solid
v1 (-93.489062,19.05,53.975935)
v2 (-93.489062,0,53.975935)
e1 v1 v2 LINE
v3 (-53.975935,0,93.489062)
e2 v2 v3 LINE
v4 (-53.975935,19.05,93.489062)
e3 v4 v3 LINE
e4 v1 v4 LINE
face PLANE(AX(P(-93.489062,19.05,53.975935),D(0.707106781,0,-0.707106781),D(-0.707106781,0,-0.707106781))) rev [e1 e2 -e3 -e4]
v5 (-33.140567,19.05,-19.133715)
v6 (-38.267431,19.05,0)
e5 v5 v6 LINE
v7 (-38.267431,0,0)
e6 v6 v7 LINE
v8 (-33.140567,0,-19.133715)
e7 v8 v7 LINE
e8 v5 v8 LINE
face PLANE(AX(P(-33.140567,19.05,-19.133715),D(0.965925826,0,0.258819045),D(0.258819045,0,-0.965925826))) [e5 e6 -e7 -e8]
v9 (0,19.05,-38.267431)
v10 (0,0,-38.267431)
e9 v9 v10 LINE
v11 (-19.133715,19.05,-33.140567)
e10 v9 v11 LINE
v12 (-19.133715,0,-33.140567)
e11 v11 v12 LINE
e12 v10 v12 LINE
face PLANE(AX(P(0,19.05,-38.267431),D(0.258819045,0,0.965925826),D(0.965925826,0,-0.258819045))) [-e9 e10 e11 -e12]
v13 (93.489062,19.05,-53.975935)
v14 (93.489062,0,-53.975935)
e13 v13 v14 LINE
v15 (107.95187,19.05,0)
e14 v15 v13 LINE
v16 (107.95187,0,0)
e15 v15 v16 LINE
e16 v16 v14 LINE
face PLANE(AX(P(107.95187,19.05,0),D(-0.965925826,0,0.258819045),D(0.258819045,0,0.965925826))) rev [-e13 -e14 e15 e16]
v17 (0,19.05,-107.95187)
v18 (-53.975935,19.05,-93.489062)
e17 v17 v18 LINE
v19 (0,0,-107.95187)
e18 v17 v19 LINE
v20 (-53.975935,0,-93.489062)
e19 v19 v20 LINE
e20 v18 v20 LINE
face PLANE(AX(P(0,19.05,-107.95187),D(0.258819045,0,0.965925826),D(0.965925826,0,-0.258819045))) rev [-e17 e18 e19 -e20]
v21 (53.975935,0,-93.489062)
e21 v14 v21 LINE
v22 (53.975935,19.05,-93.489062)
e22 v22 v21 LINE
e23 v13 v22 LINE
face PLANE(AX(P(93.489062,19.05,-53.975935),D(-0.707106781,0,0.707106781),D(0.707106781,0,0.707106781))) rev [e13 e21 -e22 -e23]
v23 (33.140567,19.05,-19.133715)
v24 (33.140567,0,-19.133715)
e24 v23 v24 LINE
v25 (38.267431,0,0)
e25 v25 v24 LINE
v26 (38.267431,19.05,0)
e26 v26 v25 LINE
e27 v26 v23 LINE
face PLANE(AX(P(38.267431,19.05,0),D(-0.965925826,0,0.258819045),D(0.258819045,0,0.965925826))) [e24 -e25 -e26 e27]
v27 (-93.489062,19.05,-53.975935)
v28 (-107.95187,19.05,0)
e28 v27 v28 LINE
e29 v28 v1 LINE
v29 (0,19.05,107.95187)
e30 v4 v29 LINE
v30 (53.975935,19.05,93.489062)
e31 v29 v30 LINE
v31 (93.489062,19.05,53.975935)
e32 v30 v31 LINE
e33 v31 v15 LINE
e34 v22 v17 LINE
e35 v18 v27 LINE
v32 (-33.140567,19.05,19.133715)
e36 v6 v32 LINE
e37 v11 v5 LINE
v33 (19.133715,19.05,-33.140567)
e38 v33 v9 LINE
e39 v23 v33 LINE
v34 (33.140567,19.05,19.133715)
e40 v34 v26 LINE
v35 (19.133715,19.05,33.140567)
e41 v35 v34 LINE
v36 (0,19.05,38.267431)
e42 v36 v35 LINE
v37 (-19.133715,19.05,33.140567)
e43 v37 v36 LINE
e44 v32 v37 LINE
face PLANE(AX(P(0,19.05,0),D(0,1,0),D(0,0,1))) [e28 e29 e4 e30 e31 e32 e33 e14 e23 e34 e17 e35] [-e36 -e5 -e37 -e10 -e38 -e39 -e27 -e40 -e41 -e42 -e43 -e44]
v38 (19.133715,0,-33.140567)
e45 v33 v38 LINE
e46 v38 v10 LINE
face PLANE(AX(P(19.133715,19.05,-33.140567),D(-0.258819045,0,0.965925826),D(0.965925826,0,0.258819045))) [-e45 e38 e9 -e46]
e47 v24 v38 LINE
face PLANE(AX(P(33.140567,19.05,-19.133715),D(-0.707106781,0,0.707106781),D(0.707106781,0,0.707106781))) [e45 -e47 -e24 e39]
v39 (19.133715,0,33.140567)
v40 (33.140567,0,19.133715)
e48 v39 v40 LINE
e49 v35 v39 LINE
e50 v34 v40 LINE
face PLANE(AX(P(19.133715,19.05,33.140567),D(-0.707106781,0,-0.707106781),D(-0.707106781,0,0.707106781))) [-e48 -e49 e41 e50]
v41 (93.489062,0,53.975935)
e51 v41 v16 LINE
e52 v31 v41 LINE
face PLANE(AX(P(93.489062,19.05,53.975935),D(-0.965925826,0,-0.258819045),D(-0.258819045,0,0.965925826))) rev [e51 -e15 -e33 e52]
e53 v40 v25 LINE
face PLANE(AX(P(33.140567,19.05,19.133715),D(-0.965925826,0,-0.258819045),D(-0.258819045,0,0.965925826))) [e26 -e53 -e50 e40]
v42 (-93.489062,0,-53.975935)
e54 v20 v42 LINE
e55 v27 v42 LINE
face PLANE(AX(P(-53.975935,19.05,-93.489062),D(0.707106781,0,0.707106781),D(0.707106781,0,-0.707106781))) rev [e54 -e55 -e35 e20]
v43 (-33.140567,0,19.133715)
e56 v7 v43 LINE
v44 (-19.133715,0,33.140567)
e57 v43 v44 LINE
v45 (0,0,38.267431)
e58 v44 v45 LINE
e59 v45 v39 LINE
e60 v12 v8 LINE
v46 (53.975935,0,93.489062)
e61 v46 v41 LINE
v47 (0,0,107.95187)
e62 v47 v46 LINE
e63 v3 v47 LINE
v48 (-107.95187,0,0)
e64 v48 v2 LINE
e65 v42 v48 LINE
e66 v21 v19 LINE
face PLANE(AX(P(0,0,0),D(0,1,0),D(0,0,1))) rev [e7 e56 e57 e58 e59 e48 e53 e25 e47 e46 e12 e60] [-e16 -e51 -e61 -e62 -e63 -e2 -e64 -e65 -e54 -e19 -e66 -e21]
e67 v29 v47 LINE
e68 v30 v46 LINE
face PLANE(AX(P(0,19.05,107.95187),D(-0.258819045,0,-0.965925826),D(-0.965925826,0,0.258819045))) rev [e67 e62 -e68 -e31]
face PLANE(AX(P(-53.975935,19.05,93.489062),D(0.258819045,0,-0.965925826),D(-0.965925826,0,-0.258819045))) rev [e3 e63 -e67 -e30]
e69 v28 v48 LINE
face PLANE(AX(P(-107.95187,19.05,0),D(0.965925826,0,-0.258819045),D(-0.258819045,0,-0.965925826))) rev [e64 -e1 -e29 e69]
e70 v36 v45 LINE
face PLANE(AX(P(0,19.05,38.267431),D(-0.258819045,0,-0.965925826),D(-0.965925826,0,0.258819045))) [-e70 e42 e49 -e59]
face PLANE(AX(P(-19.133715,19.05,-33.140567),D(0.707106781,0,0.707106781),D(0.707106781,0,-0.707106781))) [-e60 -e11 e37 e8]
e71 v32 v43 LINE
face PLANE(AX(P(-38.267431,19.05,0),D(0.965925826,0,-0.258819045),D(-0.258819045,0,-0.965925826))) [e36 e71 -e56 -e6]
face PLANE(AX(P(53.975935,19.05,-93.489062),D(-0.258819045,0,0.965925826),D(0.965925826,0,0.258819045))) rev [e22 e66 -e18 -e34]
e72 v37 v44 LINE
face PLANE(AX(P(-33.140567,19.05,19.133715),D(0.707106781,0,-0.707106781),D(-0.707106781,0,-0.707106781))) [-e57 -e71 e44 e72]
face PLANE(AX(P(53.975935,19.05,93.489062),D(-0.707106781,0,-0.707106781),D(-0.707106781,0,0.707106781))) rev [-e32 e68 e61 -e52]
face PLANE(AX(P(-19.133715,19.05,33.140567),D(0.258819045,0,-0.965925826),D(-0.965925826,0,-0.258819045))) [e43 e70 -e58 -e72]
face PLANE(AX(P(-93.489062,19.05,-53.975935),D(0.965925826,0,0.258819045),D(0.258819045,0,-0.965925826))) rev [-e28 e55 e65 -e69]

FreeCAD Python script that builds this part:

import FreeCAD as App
import Part
import Sketcher
Q = App.Units.Quantity


def add_polygon(sketch, points):
    """Adds a closed chain of lines whose ends are joined by coincident constraints."""
    first, n = sketch.GeometryCount, len(points)
    for a, b in zip(points, points[1:] + points[:1]):
        sketch.addGeometry(Part.LineSegment(App.Vector(*a, 0), App.Vector(*b, 0)), False)
    for i in range(n):
        sketch.addConstraint(Sketcher.Constraint("Coincident", first + i, 2, first + (i + 1) % n, 1))

doc = App.newDocument("Part")
body = doc.addObject("PartDesign::Body", "Body")

sketch1 = doc.addObject("Sketcher::SketchObject", "Sketch")
body.addObject(sketch1)
sketch1.AttachmentSupport = (doc.XZ_Plane, [""])
sketch1.MapMode = "FlatFace"
add_polygon(sketch1, [(-108, 0), (-93, 54), (-54, 93), (0, 108), (54, 93), (93, 54), (108, 0), (93, -54), (54, -93), (0, -108), (-54, -93), (-93, -54)])
add_polygon(sketch1, [(-33, 19), (-38, 0), (-33, -19), (-19, -33), (0, -38), (19, -33), (33, -19), (38, 0), (33, 19), (19, 33), (0, 38), (-19, 33)])
sketch1.addConstraint(Sketcher.Constraint("Symmetric", 0, 2, 6, 2, -1, 1))
sketch1.addConstraint(Sketcher.Constraint("Symmetric", 1, 2, 7, 2, -1, 1))
sketch1.addConstraint(Sketcher.Constraint("Symmetric", 2, 2, 8, 2, -1, 1))
sketch1.addConstraint(Sketcher.Constraint("Symmetric", 3, 2, 9, 2, -1, 1))
sketch1.addConstraint(Sketcher.Constraint("Symmetric", 4, 2, 10, 2, -1, 1))
sketch1.addConstraint(Sketcher.Constraint("Symmetric", 5, 2, 11, 2, -1, 1))
sketch1.addConstraint(Sketcher.Constraint("Symmetric", 12, 2, 18, 2, -1, 1))
sketch1.addConstraint(Sketcher.Constraint("Symmetric", 13, 2, 19, 2, -1, 1))
sketch1.addConstraint(Sketcher.Constraint("Symmetric", 14, 2, 20, 2, -1, 1))
sketch1.addConstraint(Sketcher.Constraint("Symmetric", 15, 2, 21, 2, -1, 1))
sketch1.addConstraint(Sketcher.Constraint("Symmetric", 16, 2, 22, 2, -1, 1))
sketch1.addConstraint(Sketcher.Constraint("Symmetric", 17, 2, 23, 2, -1, 1))
sketch1.addConstraint(Sketcher.Constraint("Symmetric", 1, 2, 3, 2, -2))
sketch1.addConstraint(Sketcher.Constraint("Symmetric", 0, 2, 4, 2, -2))
sketch1.addConstraint(Sketcher.Constraint("Symmetric", 14, 2, 16, 2, -2))
sketch1.addConstraint(Sketcher.Constraint("Symmetric", 13, 2, 17, 2, -2))
sketch1.addConstraint(Sketcher.Constraint("PointOnObject", 2, 2, -2))
sketch1.addConstraint(Sketcher.Constraint("PointOnObject", 5, 2, -1))
sketch1.addConstraint(Sketcher.Constraint("PointOnObject", 12, 2, -1))
sketch1.addConstraint(Sketcher.Constraint("PointOnObject", 15, 2, -2))
sketch1.addConstraint(Sketcher.Constraint("Perpendicular", 0, 3))
sketch1.addConstraint(Sketcher.Constraint("Perpendicular", 1, 4))
sketch1.addConstraint(Sketcher.Constraint("Perpendicular", 9, 12))
sketch1.addConstraint(Sketcher.Constraint("Parallel", 10, 14))
sketch1.addConstraint(Sketcher.Constraint("Perpendicular", 12, 15))
sketch1.addConstraint(Sketcher.Constraint("Equal", 0, 1))
sketch1.addConstraint(Sketcher.Constraint("Equal", 1, 2))
sketch1.addConstraint(Sketcher.Constraint("Equal", 13, 14))
sketch1.addConstraint(Sketcher.Constraint("Equal", 14, 15))
sketch1.addConstraint(Sketcher.Constraint("Angle", 0, Q("75 deg")))
sketch1.addConstraint(Sketcher.Constraint("Distance", 0, Q("2.2 in")))
sketch1.addConstraint(Sketcher.Constraint("Distance", 12, Q("19.80868 mm")))
pad1 = doc.addObject("PartDesign::Pad", "Pad")
body.addObject(pad1)
pad1.Profile = sketch1
pad1.Length = Q("0.75 in")
pad1.Reversed = True

doc.recompute()
